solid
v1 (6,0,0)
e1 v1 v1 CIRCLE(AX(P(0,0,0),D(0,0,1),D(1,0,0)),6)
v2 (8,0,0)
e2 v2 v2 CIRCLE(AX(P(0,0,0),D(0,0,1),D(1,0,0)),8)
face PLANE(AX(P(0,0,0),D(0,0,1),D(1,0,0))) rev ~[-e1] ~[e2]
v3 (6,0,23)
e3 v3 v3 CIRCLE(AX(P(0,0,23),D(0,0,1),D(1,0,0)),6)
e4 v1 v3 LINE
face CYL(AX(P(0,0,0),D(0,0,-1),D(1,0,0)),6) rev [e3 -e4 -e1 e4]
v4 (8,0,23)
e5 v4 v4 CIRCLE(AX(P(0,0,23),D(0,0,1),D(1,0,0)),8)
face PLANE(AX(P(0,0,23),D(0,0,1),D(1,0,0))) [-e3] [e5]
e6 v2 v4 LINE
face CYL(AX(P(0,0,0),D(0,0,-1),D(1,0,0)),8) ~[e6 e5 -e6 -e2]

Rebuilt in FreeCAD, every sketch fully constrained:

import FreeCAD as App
import Part
import Sketcher
Q = App.Units.Quantity

doc = App.newDocument("Part")
params = doc.addObject("Spreadsheet::Sheet", "Params")
for row, (alias, value) in enumerate([
    ("sketch1_diameter", "16 mm"),
    ("sketch1_diameter2", "12 mm"),
    ("pad1_length", "23 mm"),
], start=1):
    params.set(f"A{row}", alias)
    params.set(f"B{row}", "=" + value)
    params.setAlias(f"B{row}", alias)

body = doc.addObject("PartDesign::Body", "Body")

# Sketch on XY plane
sketch1 = doc.addObject("Sketcher::SketchObject", "Sketch")
body.addObject(sketch1)
sketch1.AttachmentSupport = (doc.XY_Plane, [""])
sketch1.MapMode = "FlatFace"
sketch1.addGeometry([
    Part.Circle(App.Vector(0, 0, 0), App.Vector(0, 0, 1), 8),
    Part.Circle(App.Vector(0, 0, 0), App.Vector(0, 0, 1), 6),
], False)
sketch1.addConstraint([
    Sketcher.Constraint("Coincident", 0, 3, -1, 1),
    Sketcher.Constraint("Coincident", 1, 3, -1, 1),
    Sketcher.Constraint("Diameter", 0, Q("16 mm")),
    Sketcher.Constraint("Diameter", 1, Q("12 mm")),
])
sketch1.setExpression("Constraints[2]", "Params.sketch1_diameter")
sketch1.setExpression("Constraints[3]", "Params.sketch1_diameter2")
pad1 = doc.addObject("PartDesign::Pad", "Pad")
body.addObject(pad1)
pad1.Profile = sketch1
pad1.setExpression("Length", "Params.pad1_length")

doc.recompute()
